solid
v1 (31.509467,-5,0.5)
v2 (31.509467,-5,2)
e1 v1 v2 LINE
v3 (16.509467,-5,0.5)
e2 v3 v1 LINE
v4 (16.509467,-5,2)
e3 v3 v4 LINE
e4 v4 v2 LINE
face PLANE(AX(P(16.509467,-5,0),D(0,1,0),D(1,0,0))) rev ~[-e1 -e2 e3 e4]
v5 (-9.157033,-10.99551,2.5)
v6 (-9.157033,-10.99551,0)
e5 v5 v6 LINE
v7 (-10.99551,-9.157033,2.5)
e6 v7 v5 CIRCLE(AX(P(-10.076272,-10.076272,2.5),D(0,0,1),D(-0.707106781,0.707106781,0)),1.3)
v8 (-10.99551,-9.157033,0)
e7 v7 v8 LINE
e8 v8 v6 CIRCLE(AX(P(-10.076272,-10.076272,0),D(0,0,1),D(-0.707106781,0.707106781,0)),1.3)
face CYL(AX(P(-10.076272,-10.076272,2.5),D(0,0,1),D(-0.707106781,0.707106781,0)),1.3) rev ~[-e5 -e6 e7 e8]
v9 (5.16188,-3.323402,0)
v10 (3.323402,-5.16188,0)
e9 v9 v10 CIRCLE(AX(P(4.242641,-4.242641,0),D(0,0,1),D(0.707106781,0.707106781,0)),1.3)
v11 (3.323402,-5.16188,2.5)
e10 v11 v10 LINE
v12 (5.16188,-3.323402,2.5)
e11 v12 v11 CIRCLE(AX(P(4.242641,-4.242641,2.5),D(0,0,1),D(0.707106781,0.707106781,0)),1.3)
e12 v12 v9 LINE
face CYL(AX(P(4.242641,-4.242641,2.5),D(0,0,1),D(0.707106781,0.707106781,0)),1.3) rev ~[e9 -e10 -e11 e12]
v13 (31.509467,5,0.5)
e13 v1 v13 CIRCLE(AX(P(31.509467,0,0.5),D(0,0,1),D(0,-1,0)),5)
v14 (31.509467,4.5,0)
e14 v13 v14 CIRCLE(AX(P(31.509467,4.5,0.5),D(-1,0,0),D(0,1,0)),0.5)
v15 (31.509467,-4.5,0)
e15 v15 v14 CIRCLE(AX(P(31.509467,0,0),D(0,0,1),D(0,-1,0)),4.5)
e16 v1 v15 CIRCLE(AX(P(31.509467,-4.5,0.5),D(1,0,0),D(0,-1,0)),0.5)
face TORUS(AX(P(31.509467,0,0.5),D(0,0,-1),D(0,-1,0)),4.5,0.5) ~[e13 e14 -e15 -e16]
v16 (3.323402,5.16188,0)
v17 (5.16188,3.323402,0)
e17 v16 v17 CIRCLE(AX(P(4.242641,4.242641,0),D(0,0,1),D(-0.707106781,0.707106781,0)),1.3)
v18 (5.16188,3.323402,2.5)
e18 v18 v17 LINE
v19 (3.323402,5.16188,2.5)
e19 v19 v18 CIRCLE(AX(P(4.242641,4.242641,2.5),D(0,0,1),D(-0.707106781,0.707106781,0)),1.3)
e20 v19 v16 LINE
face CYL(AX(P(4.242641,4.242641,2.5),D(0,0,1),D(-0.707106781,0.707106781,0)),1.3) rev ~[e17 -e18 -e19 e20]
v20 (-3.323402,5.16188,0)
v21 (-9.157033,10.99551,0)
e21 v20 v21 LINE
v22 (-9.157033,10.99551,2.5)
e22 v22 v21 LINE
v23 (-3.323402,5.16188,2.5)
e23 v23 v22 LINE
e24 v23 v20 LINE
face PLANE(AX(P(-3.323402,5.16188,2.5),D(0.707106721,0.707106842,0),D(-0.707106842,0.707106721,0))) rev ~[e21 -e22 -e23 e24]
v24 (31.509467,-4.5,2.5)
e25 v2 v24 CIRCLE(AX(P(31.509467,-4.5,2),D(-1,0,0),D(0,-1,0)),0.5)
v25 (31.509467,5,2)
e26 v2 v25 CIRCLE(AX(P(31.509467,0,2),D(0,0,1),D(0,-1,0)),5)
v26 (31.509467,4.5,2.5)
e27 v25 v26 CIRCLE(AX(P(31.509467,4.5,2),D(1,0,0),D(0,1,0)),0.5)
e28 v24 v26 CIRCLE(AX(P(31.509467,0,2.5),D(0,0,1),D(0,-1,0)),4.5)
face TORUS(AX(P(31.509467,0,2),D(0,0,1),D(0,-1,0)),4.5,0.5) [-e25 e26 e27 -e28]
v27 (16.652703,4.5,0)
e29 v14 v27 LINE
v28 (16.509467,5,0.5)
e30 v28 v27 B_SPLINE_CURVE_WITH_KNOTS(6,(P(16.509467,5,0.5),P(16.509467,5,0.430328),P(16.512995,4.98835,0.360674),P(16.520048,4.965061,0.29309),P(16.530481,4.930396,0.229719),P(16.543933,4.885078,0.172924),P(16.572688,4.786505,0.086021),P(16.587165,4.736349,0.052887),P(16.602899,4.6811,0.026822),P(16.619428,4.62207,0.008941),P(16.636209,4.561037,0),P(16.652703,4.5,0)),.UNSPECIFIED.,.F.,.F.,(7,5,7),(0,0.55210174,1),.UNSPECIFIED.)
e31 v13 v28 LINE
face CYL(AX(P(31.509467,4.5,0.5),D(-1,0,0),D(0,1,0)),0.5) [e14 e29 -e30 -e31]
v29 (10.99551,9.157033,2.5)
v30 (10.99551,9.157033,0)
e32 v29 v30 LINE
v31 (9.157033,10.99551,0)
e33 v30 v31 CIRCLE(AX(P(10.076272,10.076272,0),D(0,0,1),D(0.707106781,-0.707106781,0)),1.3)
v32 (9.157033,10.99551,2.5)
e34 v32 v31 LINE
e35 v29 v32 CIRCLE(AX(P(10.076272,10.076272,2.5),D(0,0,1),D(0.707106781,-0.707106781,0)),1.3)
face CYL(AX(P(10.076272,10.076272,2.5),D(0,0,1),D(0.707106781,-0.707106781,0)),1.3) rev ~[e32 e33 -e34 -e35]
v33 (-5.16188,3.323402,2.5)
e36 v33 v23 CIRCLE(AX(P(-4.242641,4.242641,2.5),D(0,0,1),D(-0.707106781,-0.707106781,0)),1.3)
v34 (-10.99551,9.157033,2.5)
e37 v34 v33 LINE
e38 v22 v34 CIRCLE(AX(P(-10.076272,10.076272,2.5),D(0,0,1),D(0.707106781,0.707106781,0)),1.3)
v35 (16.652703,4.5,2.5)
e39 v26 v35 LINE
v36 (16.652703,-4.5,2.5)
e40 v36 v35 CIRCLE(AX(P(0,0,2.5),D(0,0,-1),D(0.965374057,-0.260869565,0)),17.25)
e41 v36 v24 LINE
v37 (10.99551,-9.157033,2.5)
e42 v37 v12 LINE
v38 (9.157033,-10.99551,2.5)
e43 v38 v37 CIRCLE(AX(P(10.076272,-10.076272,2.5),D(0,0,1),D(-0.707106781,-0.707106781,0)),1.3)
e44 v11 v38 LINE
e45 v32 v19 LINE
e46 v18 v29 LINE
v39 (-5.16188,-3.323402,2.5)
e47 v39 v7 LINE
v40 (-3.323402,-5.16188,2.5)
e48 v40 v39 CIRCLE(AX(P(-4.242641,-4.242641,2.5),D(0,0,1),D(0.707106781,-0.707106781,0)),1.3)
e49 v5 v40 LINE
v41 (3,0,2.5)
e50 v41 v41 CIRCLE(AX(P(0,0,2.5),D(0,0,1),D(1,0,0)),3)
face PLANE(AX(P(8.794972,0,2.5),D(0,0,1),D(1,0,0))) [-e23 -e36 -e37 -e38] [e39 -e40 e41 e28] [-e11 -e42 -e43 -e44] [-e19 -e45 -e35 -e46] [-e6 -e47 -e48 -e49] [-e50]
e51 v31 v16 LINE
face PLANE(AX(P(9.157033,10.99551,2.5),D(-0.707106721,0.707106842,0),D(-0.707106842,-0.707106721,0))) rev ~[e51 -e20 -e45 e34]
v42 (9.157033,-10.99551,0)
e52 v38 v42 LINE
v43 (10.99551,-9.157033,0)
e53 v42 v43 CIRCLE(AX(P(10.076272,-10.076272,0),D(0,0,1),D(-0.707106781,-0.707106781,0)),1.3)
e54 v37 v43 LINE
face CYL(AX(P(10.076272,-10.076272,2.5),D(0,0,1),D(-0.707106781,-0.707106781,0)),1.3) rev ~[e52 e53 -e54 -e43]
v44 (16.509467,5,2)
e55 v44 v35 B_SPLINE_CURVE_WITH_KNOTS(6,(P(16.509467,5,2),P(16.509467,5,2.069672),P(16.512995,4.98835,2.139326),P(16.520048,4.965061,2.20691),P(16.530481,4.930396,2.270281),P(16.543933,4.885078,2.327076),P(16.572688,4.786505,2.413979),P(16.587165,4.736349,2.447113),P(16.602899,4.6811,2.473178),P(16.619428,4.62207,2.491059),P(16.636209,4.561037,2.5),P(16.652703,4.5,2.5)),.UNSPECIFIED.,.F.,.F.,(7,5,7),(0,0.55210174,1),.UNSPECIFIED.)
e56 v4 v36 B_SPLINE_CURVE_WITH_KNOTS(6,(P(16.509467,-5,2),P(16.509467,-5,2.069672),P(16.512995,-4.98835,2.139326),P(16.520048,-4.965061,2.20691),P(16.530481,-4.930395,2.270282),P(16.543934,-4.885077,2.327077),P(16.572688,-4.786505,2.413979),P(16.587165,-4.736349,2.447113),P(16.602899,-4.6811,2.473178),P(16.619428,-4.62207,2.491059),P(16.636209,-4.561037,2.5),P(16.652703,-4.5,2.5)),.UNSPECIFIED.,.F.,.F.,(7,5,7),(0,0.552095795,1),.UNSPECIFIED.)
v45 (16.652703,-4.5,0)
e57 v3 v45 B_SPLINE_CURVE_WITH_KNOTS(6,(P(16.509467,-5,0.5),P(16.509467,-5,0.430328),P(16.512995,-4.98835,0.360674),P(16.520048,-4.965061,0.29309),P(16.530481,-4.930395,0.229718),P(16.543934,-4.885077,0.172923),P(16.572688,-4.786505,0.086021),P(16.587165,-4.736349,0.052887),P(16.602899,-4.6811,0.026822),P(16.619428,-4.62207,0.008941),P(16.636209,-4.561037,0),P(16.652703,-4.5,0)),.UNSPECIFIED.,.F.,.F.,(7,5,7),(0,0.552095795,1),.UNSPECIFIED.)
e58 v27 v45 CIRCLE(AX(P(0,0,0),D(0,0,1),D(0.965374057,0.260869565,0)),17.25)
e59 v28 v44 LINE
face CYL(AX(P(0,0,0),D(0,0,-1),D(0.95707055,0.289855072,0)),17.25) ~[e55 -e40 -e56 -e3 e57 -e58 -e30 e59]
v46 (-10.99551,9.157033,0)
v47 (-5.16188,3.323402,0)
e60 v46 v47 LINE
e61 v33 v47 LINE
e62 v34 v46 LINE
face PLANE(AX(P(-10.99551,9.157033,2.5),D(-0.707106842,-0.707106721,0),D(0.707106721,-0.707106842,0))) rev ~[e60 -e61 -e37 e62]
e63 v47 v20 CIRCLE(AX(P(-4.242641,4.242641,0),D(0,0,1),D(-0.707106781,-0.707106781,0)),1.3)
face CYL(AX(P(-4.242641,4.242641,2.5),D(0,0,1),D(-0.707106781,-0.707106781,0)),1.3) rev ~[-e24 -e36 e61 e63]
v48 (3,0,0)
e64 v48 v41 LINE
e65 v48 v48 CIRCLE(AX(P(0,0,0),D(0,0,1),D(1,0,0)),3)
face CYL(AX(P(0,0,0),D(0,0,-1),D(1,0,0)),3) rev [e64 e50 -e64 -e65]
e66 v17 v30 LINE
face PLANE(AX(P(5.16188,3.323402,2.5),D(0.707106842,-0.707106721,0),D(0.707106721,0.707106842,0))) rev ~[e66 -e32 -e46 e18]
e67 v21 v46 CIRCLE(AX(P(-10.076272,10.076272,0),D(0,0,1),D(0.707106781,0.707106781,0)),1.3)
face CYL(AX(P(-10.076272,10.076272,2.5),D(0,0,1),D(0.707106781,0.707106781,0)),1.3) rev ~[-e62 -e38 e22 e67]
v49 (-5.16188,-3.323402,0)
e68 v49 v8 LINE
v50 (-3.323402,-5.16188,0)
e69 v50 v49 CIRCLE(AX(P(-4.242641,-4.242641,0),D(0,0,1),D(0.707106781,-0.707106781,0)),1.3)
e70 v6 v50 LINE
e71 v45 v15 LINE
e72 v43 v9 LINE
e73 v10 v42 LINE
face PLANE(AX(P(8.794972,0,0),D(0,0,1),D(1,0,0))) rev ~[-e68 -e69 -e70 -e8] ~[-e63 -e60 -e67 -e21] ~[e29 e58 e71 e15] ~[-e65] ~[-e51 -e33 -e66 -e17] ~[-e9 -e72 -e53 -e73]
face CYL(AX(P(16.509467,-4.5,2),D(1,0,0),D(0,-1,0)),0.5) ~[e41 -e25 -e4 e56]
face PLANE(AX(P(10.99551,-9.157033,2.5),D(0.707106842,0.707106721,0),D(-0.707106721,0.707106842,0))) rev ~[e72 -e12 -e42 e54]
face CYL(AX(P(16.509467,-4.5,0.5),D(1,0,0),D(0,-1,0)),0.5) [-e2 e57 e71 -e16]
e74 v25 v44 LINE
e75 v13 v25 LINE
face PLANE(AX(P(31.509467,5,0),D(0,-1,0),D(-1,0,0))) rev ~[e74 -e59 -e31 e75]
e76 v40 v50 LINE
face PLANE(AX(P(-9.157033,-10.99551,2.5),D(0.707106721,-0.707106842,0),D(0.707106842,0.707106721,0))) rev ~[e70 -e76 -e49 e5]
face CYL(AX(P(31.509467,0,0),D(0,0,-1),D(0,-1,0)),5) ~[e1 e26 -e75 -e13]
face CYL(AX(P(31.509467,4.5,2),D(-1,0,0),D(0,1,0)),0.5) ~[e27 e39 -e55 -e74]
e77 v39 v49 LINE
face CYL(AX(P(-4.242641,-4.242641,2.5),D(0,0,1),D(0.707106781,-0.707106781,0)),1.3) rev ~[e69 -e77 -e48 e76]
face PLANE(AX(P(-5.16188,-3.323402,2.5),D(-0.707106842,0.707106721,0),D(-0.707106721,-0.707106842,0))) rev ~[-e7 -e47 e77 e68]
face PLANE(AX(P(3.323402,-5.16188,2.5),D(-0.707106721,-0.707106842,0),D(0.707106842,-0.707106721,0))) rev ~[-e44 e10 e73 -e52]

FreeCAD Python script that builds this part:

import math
import FreeCAD as App
import Part
import Sketcher
from FreeCAD import Vector
Q = App.Units.Quantity


def edges_at(feature, points):
    """Names of the edges that pass closest to the given points."""
    edges = feature.Shape.Edges
    near = lambda p: min(range(len(edges)), key=lambda i: edges[i].distToShape(Part.Vertex(*p))[0])
    return sorted({f"Edge{near(p) + 1}" for p in points})

doc = App.newDocument("Part")
body = doc.addObject("PartDesign::Body", "Body")

# Sketch on XY plane
sketch1 = doc.addObject("Sketcher::SketchObject", "Sketch")
body.addObject(sketch1)
sketch1.AttachmentSupport = (doc.XY_Plane, [""])
sketch1.MapMode = "FlatFace"
sketch1.addGeometry([
    Part.ArcOfCircle(Part.Circle(Vector(0, 0, 0), Vector(0, 0, 1), 17.3), math.radians(17), math.radians(343)),  # 0
    Part.LineSegment(Vector(16.5, -5, 0), Vector(31.5, -5, 0)),  # 1
    Part.ArcOfCircle(Part.Circle(Vector(31.5, 0, 0), Vector(0, 0, 1), 5), math.radians(-90), math.radians(90)),  # 2
    Part.LineSegment(Vector(31.5, 5, 0), Vector(16.5, 5, 0)),  # 3
    Part.Circle(Vector(0, 0, 0), Vector(0, 0, 1), 3),  # 4
], False)
sketch1.addConstraint([
    Sketcher.Constraint("Coincident", 0, 2, 1, 1),
    Sketcher.Constraint("Tangent", 1, 2, 2, 1),
    Sketcher.Constraint("Tangent", 2, 2, 3, 1),
    Sketcher.Constraint("Coincident", 3, 2, 0, 1),
    Sketcher.Constraint("Horizontal", 1),
    Sketcher.Constraint("Horizontal", 3),
    Sketcher.Constraint("Coincident", 0, 3, -1, 1),
    Sketcher.Constraint("Coincident", 4, 3, -1, 1),
    Sketcher.Constraint("PointOnObject", 2, 3, -1),
    Sketcher.Constraint("Diameter", 4, 6.0),
    Sketcher.Constraint("Radius", 2, 5.0),
    Sketcher.Constraint("DistanceX", 1, 1, 1, 2, 15.0),
    Sketcher.Constraint("Radius", 0, 17.25),
])
pad1 = doc.addObject("PartDesign::Pad", "Pad")
body.addObject(pad1)
pad1.Profile = sketch1
pad1.Length = 2.5

# Sketch on XY plane
sketch2 = doc.addObject("Sketcher::SketchObject", "Sketch001")
body.addObject(sketch2)
sketch2.AttachmentSupport = (doc.XY_Plane, [""])
sketch2.MapMode = "FlatFace"
sketch2.AttachmentOffset = App.Placement(Vector(0, 0, 2.5), App.Rotation())
sketch2.addGeometry([
    Part.ArcOfCircle(Part.Circle(Vector(4.2, 4.2, 0), Vector(0, 0, 1), 1.3), math.radians(135), math.radians(315)),
    Part.LineSegment(Vector(5.2, 3.3, 0), Vector(11, 9.2, 0)),
    Part.ArcOfCircle(Part.Circle(Vector(10.1, 10.1, 0), Vector(0, 0, 1), 1.3), math.radians(-45), math.radians(135)),
    Part.LineSegment(Vector(9.2, 11, 0), Vector(3.3, 5.2, 0)),
], False)
sketch2.addConstraint([
    Sketcher.Constraint("Tangent", 0, 2, 1, 1),
    Sketcher.Constraint("Tangent", 1, 2, 2, 1),
    Sketcher.Constraint("Tangent", 2, 2, 3, 1),
    Sketcher.Constraint("Tangent", 3, 2, 0, 1),
    Sketcher.Constraint("Equal", 0, 2),
    Sketcher.Constraint("Radius", 0, 1.3),
    Sketcher.Constraint("Angle", 1, Q("45.000005 deg")),
    Sketcher.Constraint("Distance", 1, 8.249999),
    Sketcher.Constraint("DistanceY", -1, 1, 0, 2, 3.323402),
    Sketcher.Constraint("DistanceX", -1, 1, 0, 3, 4.242641),
])
pocket1 = doc.addObject("PartDesign::Pocket", "Pocket")
body.addObject(pocket1)
pocket1.Profile = sketch2
pocket1.Length = 5
doc.recompute()

polarpattern = doc.addObject("PartDesign::PolarPattern", "PolarPattern")
body.addObject(polarpattern)
polarpattern.Originals = [pocket1]
polarpattern.Axis = (doc.Z_Axis, [""])
polarpattern.Angle = 360
polarpattern.Occurrences = 4
body.Tip = polarpattern
doc.recompute()

fillet = doc.addObject("PartDesign::Fillet", "Fillet")
body.addObject(fillet)
fillet.Base = (polarpattern, edges_at(polarpattern, [
    (24.009, 5, 2.5),
    (36.509, 0, 2.5),
    (24.009, -5, 2.5),
    (24.009, -5, 0),
    (36.509, 0, 0),
    (24.009, 5, 0),
]))
fillet.Radius = 0.5

doc.recompute()
